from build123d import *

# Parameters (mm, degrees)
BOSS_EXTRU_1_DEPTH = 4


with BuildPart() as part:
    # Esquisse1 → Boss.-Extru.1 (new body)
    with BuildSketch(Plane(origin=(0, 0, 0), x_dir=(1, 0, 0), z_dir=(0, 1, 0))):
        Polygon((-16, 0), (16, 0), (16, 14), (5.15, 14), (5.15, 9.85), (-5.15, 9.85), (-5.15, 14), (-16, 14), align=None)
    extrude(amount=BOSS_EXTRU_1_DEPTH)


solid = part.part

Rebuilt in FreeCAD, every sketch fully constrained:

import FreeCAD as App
import Part
import Sketcher
from FreeCAD import Vector


def add_polygon(sketch, points):
    """Adds a closed chain of lines whose ends are joined by coincident constraints."""
    first, n = sketch.GeometryCount, len(points)
    for a, b in zip(points, points[1:] + points[:1]):
        sketch.addGeometry(Part.LineSegment(App.Vector(*a, 0), App.Vector(*b, 0)), False)
    for i in range(n):
        sketch.addConstraint(Sketcher.Constraint("Coincident", first + i, 2, first + (i + 1) % n, 1))

doc = App.newDocument("Part")
body = doc.addObject("PartDesign::Body", "Body")

sketch1 = doc.addObject("Sketcher::SketchObject", "Sketch")
body.addObject(sketch1)
sketch1.AttachmentSupport = (doc.XZ_Plane, [""])
sketch1.MapMode = "FlatFace"
add_polygon(sketch1, [(-16, 0), (16, 0), (16, -14), (5.2, -14), (5.2, -9.8), (-5.2, -9.8), (-5.2, -14), (-16, -14)])
sketch1.addConstraint([
    Sketcher.Constraint("Horizontal", 0),
    Sketcher.Constraint("Vertical", 1),
    Sketcher.Constraint("Horizontal", 2),
    Sketcher.Constraint("Vertical", 3),
    Sketcher.Constraint("Horizontal", 4),
    Sketcher.Constraint("Vertical", 5),
    Sketcher.Constraint("Horizontal", 6),
    Sketcher.Constraint("Vertical", 7),
    Sketcher.Constraint("Symmetric", 0, 2, 7, 2, -1, 1),
    Sketcher.Constraint("Symmetric", 2, 2, 5, 2, -2),
    Sketcher.Constraint("DistanceX", 0, 1, 0, 2, 32.0),
    Sketcher.Constraint("DistanceY", 1, 2, 1, 1, 14.0),
    Sketcher.Constraint("DistanceX", 4, 2, 4, 1, 10.3),
    Sketcher.Constraint("DistanceY", 3, 1, 3, 2, 4.15),
])
pad1 = doc.addObject("PartDesign::Pad", "Pad")
body.addObject(pad1)
pad1.Profile = sketch1
pad1.Length = 4
pad1.Reversed = True

doc.recompute()
